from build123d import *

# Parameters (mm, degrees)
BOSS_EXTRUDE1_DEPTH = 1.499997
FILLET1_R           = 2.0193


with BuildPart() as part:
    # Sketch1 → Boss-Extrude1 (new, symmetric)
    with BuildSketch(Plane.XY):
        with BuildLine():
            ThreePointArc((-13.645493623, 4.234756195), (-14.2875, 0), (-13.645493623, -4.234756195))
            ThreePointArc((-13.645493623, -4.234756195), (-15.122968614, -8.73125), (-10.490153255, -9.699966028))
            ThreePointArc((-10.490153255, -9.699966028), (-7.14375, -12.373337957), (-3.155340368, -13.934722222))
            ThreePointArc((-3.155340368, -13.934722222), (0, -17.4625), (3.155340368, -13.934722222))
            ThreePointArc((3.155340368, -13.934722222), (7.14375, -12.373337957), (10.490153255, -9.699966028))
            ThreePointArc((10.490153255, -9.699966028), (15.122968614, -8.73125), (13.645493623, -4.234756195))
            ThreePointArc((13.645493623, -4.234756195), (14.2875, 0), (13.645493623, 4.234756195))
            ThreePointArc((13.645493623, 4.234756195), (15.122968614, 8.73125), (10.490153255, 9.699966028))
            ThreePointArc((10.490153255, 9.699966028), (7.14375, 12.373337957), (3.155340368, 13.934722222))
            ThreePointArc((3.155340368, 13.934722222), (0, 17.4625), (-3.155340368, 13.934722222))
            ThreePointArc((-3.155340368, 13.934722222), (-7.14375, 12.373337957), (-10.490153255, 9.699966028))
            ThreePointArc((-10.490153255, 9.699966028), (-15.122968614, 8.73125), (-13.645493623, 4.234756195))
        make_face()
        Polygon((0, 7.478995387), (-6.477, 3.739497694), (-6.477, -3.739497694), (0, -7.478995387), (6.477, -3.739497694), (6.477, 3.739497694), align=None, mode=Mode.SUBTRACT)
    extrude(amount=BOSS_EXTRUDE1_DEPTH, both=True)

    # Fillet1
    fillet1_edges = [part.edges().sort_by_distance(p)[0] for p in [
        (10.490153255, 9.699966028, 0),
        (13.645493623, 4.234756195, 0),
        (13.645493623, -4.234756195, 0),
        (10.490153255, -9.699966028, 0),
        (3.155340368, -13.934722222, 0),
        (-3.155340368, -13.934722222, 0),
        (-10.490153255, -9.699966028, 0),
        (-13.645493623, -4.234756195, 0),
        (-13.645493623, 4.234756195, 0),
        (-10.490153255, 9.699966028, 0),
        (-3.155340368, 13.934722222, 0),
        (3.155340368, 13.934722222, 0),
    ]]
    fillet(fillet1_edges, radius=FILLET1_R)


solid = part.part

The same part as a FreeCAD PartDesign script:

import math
import FreeCAD as App
import Part
import Sketcher
Q = App.Units.Quantity


def edges_at(feature, points):
    """Names of the edges that pass closest to the given points."""
    edges = feature.Shape.Edges
    near = lambda p: min(range(len(edges)), key=lambda i: edges[i].distToShape(Part.Vertex(*p))[0])
    return sorted({f"Edge{near(p) + 1}" for p in points})

doc = App.newDocument("Part")
body = doc.addObject("PartDesign::Body", "Body")

# Sketch on XY plane
sketch1 = doc.addObject("Sketcher::SketchObject", "Sketch")
body.addObject(sketch1)
sketch1.AttachmentSupport = (doc.XY_Plane, [""])
sketch1.MapMode = "FlatFace"
sketch1.addGeometry([
    Part.ArcOfCircle(Part.Circle(App.Vector(0, 0, 0), App.Vector(0, 0, 1), 14.3), math.radians(163), math.radians(197)),  # 0
    Part.ArcOfCircle(Part.Circle(App.Vector(-12.4, -7.1, 0), App.Vector(0, 0, 1), 3.2), math.radians(114), math.radians(306)),  # 1
    Part.ArcOfCircle(Part.Circle(App.Vector(0, 0, 0), App.Vector(0, 0, 1), 14.3), math.radians(-137), math.radians(-103)),  # 2
    Part.ArcOfCircle(Part.Circle(App.Vector(0, -14.3, 0), App.Vector(0, 0, 1), 3.2), math.radians(174), math.radians(366)),  # 3
    Part.ArcOfCircle(Part.Circle(App.Vector(0, 0, 0), App.Vector(0, 0, 1), 14.3), math.radians(-77), math.radians(-43)),  # 4
    Part.ArcOfCircle(Part.Circle(App.Vector(12.4, -7.1, 0), App.Vector(0, 0, 1), 3.2), math.radians(-126), math.radians(66)),  # 5
    Part.ArcOfCircle(Part.Circle(App.Vector(0, 0, 0), App.Vector(0, 0, 1), 14.3), math.radians(-17), math.radians(17)),  # 6
    Part.ArcOfCircle(Part.Circle(App.Vector(12.4, 7.1, 0), App.Vector(0, 0, 1), 3.2), math.radians(-66), math.radians(126)),  # 7
    Part.ArcOfCircle(Part.Circle(App.Vector(0, 0, 0), App.Vector(0, 0, 1), 14.3), math.radians(43), math.radians(77)),  # 8
    Part.ArcOfCircle(Part.Circle(App.Vector(0, 14.3, 0), App.Vector(0, 0, 1), 3.2), math.radians(-6), math.radians(186)),  # 9
    Part.ArcOfCircle(Part.Circle(App.Vector(0, 0, 0), App.Vector(0, 0, 1), 14.3), math.radians(103), math.radians(137)),  # 10
    Part.ArcOfCircle(Part.Circle(App.Vector(-12.4, 7.1, 0), App.Vector(0, 0, 1), 3.2), math.radians(54), math.radians(246)),  # 11
    Part.LineSegment(App.Vector(-6.5, 3.7, 0), App.Vector(0, 7.5, 0)),  # 12
    Part.LineSegment(App.Vector(0, 7.5, 0), App.Vector(6.5, 3.7, 0)),  # 13
    Part.LineSegment(App.Vector(6.5, 3.7, 0), App.Vector(6.5, -3.7, 0)),  # 14
    Part.LineSegment(App.Vector(6.5, -3.7, 0), App.Vector(0, -7.5, 0)),  # 15
    Part.LineSegment(App.Vector(0, -7.5, 0), App.Vector(-6.5, -3.7, 0)),  # 16
    Part.LineSegment(App.Vector(-6.5, -3.7, 0), App.Vector(-6.5, 3.7, 0)),  # 17
], False)
sketch1.addConstraint([
    Sketcher.Constraint("Coincident", 0, 2, 1, 1),
    Sketcher.Constraint("Coincident", 1, 2, 2, 1),
    Sketcher.Constraint("Coincident", 2, 2, 3, 1),
    Sketcher.Constraint("Coincident", 3, 2, 4, 1),
    Sketcher.Constraint("Coincident", 4, 2, 5, 1),
    Sketcher.Constraint("Coincident", 5, 2, 6, 1),
    Sketcher.Constraint("Coincident", 6, 2, 7, 1),
    Sketcher.Constraint("Coincident", 7, 2, 8, 1),
    Sketcher.Constraint("Coincident", 8, 2, 9, 1),
    Sketcher.Constraint("Coincident", 9, 2, 10, 1),
    Sketcher.Constraint("Coincident", 10, 2, 11, 1),
    Sketcher.Constraint("Coincident", 11, 2, 0, 1),
    Sketcher.Constraint("Coincident", 12, 2, 13, 1),
    Sketcher.Constraint("Coincident", 13, 2, 14, 1),
    Sketcher.Constraint("Coincident", 14, 2, 15, 1),
    Sketcher.Constraint("Coincident", 15, 2, 16, 1),
    Sketcher.Constraint("Coincident", 16, 2, 17, 1),
    Sketcher.Constraint("Coincident", 17, 2, 12, 1),
    Sketcher.Constraint("Vertical", 14),
    Sketcher.Constraint("Vertical", 17),
    Sketcher.Constraint("Coincident", 0, 3, -1, 1),
    Sketcher.Constraint("Coincident", 2, 3, -1, 1),
    Sketcher.Constraint("Coincident", 4, 3, -1, 1),
    Sketcher.Constraint("Coincident", 6, 3, -1, 1),
    Sketcher.Constraint("Coincident", 8, 3, -1, 1),
    Sketcher.Constraint("Coincident", 10, 3, -1, 1),
    Sketcher.Constraint("Equal", 0, 2),
    Sketcher.Constraint("Equal", 1, 3),
    Sketcher.Constraint("Equal", 2, 4),
    Sketcher.Constraint("Equal", 3, 5),
    Sketcher.Constraint("Equal", 4, 6),
    Sketcher.Constraint("Equal", 5, 7),
    Sketcher.Constraint("Equal", 6, 8),
    Sketcher.Constraint("Equal", 7, 9),
    Sketcher.Constraint("Equal", 8, 10),
    Sketcher.Constraint("Equal", 9, 11),
    Sketcher.Constraint("Symmetric", 1, 3, 7, 3, -1, 1),
    Sketcher.Constraint("Symmetric", 3, 3, 9, 3, -1, 1),
    Sketcher.Constraint("Symmetric", 5, 3, 11, 3, -1, 1),
    Sketcher.Constraint("Symmetric", 12, 2, 15, 2, -1, 1),
    Sketcher.Constraint("Symmetric", 13, 2, 16, 2, -1, 1),
    Sketcher.Constraint("Symmetric", 1, 3, 5, 3, -2),
    Sketcher.Constraint("PointOnObject", 3, 3, -2),
    Sketcher.Constraint("PointOnObject", 12, 2, -2),
    Sketcher.Constraint("Parallel", 12, 15),
    Sketcher.Constraint("Horizontal", 14, 2, 16, 2),
    Sketcher.Constraint("Angle", 12, Q("30 deg")),
    Sketcher.Constraint("Radius", 0, Q("0.5625 in")),
    Sketcher.Constraint("Radius", 1, Q("0.125 in")),
    Sketcher.Constraint("DistanceY", 1, 3, -1, 1, Q("0.28125 in")),
    Sketcher.Constraint("DistanceY", 3, 3, -1, 1, Q("0.5625 in")),
    Sketcher.Constraint("DistanceX", -1, 1, 13, 2, Q("0.255 in")),
    Sketcher.Constraint("DistanceY", 14, 2, 14, 1, Q("7.478995 mm")),
    Sketcher.Constraint("DistanceX", 0, 2, 1, 2, Q("3.15534 mm")),
])
pad1 = doc.addObject("PartDesign::Pad", "Pad")
body.addObject(pad1)
pad1.Profile = sketch1
pad1.Length = 2.999994
pad1.Midplane = True
doc.recompute()

fillet = doc.addObject("PartDesign::Fillet", "Fillet")
body.addObject(fillet)
fillet.Base = (pad1, edges_at(pad1, [
    (10.49, 9.7, 0),
    (13.645, 4.235, 0),
    (13.645, -4.235, 0),
    (10.49, -9.7, 0),
    (3.155, -13.935, 0),
    (-3.155, -13.935, 0),
    (-10.49, -9.7, 0),
    (-13.645, -4.235, 0),
    (-13.645, 4.235, 0),
    (-10.49, 9.7, 0),
    (-3.155, 13.935, 0),
    (3.155, 13.935, 0),
]))
fillet.Radius = Q("0.0795 in")

doc.recompute()
